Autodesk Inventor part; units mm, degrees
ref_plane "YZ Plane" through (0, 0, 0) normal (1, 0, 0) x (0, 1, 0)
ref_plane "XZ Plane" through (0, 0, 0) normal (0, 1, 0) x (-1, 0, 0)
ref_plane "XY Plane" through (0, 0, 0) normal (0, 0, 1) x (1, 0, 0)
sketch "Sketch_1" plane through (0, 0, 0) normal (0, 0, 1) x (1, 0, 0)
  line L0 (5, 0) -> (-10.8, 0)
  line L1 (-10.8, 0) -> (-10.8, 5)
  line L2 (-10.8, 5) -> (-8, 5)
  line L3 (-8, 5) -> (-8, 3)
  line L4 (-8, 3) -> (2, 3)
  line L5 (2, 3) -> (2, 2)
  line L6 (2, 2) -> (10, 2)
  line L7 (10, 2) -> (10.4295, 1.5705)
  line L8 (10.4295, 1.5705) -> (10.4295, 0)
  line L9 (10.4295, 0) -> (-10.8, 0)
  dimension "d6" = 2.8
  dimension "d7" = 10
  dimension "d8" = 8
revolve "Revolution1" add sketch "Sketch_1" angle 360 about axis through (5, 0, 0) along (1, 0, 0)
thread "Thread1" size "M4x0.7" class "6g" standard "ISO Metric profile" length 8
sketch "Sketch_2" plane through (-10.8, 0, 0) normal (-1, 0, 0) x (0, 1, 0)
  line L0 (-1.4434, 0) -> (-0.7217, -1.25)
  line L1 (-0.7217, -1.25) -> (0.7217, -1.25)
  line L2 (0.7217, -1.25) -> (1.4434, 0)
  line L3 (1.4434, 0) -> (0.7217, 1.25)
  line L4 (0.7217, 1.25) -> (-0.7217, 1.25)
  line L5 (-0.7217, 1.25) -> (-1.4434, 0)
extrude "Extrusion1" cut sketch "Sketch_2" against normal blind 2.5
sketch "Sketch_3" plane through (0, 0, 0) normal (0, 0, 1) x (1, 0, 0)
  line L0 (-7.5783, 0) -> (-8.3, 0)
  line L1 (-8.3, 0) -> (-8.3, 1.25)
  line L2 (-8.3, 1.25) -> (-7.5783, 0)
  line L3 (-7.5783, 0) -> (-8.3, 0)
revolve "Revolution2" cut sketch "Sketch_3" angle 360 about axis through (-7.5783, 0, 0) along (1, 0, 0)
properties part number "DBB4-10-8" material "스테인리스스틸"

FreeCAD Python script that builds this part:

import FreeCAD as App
import Part
import Sketcher
Q = App.Units.Quantity


def add_polygon(sketch, points):
    """Adds a closed chain of lines whose ends are joined by coincident constraints."""
    first, n = sketch.GeometryCount, len(points)
    for a, b in zip(points, points[1:] + points[:1]):
        sketch.addGeometry(Part.LineSegment(App.Vector(*a, 0), App.Vector(*b, 0)), False)
    for i in range(n):
        sketch.addConstraint(Sketcher.Constraint("Coincident", first + i, 2, first + (i + 1) % n, 1))

doc = App.newDocument("Part")
body = doc.addObject("PartDesign::Body", "Body")

# Sketch on XY plane
sketch1 = doc.addObject("Sketcher::SketchObject", "Sketch")
body.addObject(sketch1)
sketch1.AttachmentSupport = (doc.XY_Plane, [""])
sketch1.MapMode = "FlatFace"
add_polygon(sketch1, [(-10.8, 0), (10.4, 0), (10.4, 1.6), (10, 2), (2, 2), (2, 3), (-8, 3), (-8, 5), (-10.8, 5)])  # lines 0-8
sketch1.addConstraint([
    Sketcher.Constraint("Horizontal", 0),
    Sketcher.Constraint("Vertical", 1),
    Sketcher.Constraint("Horizontal", 3),
    Sketcher.Constraint("Vertical", 4),
    Sketcher.Constraint("Horizontal", 5),
    Sketcher.Constraint("Vertical", 6),
    Sketcher.Constraint("Horizontal", 7),
    Sketcher.Constraint("Vertical", 8),
    Sketcher.Constraint("PointOnObject", 0, 2, -1),
    Sketcher.Constraint("DistanceX", 3, 2, 3, 1, Q("8 mm")),
    Sketcher.Constraint("DistanceX", 5, 2, 5, 1, Q("10 mm")),
    Sketcher.Constraint("DistanceX", 7, 2, 7, 1, Q("2.8 mm")),
    Sketcher.Constraint("DistanceX", -1, 1, 2, 2, Q("10 mm")),
    Sketcher.Constraint("DistanceY", 4, 1, 4, 2, Q("1 mm")),
    Sketcher.Constraint("DistanceY", 6, 1, 6, 2, Q("2 mm")),
    Sketcher.Constraint("DistanceY", 8, 2, 8, 1, Q("5 mm")),
    Sketcher.Constraint("Angle", 2, Q("135 deg")),
    Sketcher.Constraint("DistanceX", 0, 1, 0, 2, Q("21.2295 mm")),
])
revolution = doc.addObject("PartDesign::Revolution", "Revolution")
body.addObject(revolution)
revolution.Profile = sketch1
revolution.ReferenceAxis = (sketch1, ["H_Axis"])
revolution.Angle = 360

# Sketch on YZ plane
sketch2 = doc.addObject("Sketcher::SketchObject", "Sketch001")
body.addObject(sketch2)
sketch2.AttachmentSupport = (doc.YZ_Plane, [""])
sketch2.MapMode = "FlatFace"
sketch2.AttachmentOffset = App.Placement(App.Vector(0, 0, -10.8), App.Rotation())
add_polygon(sketch2, [(-0.7, -1.2), (-1.4, 0), (-0.7, 1.2), (0.7, 1.2), (1.4, 0), (0.7, -1.2)])  # lines 0-5
sketch2.addConstraint([
    Sketcher.Constraint("Horizontal", 2),
    Sketcher.Constraint("Horizontal", 5),
    Sketcher.Constraint("Symmetric", 0, 2, 3, 2, -1, 1),
    Sketcher.Constraint("Symmetric", 1, 2, 4, 2, -1, 1),
    Sketcher.Constraint("PointOnObject", 0, 2, -1),
    Sketcher.Constraint("Parallel", 0, 3),
    Sketcher.Constraint("Vertical", 2, 2, 4, 2),
    Sketcher.Constraint("Angle", 0, Q("120.0004 deg")),
    Sketcher.Constraint("DistanceY", 4, 2, 2, 2, Q("2.5 mm")),
    Sketcher.Constraint("DistanceX", 2, 1, 2, 2, Q("1.4434 mm")),
])
pocket1 = doc.addObject("PartDesign::Pocket", "Pocket")
body.addObject(pocket1)
pocket1.Profile = sketch2
pocket1.Length = 2.5
pocket1.Reversed = True

# Sketch on XY plane
sketch3 = doc.addObject("Sketcher::SketchObject", "Sketch002")
body.addObject(sketch3)
sketch3.AttachmentSupport = (doc.XY_Plane, [""])
sketch3.MapMode = "FlatFace"
add_polygon(sketch3, [(-8.3, 0), (-7.6, 0), (-8.3, 1.2)])  # lines 0-2
sketch3.addConstraint([
    Sketcher.Constraint("Horizontal", 0),
    Sketcher.Constraint("Vertical", 2),
    Sketcher.Constraint("PointOnObject", 0, 2, -1),
    Sketcher.Constraint("Angle", 1, Q("120.0004 deg")),
    Sketcher.Constraint("DistanceY", 2, 2, 2, 1, Q("1.25 mm")),
    Sketcher.Constraint("DistanceX", 1, 2, -1, 1, Q("8.3 mm")),
])
groove = doc.addObject("PartDesign::Groove", "Groove")
body.addObject(groove)
groove.Profile = sketch3
groove.ReferenceAxis = (sketch3, ["H_Axis"])
groove.Angle = 360

doc.recompute()
